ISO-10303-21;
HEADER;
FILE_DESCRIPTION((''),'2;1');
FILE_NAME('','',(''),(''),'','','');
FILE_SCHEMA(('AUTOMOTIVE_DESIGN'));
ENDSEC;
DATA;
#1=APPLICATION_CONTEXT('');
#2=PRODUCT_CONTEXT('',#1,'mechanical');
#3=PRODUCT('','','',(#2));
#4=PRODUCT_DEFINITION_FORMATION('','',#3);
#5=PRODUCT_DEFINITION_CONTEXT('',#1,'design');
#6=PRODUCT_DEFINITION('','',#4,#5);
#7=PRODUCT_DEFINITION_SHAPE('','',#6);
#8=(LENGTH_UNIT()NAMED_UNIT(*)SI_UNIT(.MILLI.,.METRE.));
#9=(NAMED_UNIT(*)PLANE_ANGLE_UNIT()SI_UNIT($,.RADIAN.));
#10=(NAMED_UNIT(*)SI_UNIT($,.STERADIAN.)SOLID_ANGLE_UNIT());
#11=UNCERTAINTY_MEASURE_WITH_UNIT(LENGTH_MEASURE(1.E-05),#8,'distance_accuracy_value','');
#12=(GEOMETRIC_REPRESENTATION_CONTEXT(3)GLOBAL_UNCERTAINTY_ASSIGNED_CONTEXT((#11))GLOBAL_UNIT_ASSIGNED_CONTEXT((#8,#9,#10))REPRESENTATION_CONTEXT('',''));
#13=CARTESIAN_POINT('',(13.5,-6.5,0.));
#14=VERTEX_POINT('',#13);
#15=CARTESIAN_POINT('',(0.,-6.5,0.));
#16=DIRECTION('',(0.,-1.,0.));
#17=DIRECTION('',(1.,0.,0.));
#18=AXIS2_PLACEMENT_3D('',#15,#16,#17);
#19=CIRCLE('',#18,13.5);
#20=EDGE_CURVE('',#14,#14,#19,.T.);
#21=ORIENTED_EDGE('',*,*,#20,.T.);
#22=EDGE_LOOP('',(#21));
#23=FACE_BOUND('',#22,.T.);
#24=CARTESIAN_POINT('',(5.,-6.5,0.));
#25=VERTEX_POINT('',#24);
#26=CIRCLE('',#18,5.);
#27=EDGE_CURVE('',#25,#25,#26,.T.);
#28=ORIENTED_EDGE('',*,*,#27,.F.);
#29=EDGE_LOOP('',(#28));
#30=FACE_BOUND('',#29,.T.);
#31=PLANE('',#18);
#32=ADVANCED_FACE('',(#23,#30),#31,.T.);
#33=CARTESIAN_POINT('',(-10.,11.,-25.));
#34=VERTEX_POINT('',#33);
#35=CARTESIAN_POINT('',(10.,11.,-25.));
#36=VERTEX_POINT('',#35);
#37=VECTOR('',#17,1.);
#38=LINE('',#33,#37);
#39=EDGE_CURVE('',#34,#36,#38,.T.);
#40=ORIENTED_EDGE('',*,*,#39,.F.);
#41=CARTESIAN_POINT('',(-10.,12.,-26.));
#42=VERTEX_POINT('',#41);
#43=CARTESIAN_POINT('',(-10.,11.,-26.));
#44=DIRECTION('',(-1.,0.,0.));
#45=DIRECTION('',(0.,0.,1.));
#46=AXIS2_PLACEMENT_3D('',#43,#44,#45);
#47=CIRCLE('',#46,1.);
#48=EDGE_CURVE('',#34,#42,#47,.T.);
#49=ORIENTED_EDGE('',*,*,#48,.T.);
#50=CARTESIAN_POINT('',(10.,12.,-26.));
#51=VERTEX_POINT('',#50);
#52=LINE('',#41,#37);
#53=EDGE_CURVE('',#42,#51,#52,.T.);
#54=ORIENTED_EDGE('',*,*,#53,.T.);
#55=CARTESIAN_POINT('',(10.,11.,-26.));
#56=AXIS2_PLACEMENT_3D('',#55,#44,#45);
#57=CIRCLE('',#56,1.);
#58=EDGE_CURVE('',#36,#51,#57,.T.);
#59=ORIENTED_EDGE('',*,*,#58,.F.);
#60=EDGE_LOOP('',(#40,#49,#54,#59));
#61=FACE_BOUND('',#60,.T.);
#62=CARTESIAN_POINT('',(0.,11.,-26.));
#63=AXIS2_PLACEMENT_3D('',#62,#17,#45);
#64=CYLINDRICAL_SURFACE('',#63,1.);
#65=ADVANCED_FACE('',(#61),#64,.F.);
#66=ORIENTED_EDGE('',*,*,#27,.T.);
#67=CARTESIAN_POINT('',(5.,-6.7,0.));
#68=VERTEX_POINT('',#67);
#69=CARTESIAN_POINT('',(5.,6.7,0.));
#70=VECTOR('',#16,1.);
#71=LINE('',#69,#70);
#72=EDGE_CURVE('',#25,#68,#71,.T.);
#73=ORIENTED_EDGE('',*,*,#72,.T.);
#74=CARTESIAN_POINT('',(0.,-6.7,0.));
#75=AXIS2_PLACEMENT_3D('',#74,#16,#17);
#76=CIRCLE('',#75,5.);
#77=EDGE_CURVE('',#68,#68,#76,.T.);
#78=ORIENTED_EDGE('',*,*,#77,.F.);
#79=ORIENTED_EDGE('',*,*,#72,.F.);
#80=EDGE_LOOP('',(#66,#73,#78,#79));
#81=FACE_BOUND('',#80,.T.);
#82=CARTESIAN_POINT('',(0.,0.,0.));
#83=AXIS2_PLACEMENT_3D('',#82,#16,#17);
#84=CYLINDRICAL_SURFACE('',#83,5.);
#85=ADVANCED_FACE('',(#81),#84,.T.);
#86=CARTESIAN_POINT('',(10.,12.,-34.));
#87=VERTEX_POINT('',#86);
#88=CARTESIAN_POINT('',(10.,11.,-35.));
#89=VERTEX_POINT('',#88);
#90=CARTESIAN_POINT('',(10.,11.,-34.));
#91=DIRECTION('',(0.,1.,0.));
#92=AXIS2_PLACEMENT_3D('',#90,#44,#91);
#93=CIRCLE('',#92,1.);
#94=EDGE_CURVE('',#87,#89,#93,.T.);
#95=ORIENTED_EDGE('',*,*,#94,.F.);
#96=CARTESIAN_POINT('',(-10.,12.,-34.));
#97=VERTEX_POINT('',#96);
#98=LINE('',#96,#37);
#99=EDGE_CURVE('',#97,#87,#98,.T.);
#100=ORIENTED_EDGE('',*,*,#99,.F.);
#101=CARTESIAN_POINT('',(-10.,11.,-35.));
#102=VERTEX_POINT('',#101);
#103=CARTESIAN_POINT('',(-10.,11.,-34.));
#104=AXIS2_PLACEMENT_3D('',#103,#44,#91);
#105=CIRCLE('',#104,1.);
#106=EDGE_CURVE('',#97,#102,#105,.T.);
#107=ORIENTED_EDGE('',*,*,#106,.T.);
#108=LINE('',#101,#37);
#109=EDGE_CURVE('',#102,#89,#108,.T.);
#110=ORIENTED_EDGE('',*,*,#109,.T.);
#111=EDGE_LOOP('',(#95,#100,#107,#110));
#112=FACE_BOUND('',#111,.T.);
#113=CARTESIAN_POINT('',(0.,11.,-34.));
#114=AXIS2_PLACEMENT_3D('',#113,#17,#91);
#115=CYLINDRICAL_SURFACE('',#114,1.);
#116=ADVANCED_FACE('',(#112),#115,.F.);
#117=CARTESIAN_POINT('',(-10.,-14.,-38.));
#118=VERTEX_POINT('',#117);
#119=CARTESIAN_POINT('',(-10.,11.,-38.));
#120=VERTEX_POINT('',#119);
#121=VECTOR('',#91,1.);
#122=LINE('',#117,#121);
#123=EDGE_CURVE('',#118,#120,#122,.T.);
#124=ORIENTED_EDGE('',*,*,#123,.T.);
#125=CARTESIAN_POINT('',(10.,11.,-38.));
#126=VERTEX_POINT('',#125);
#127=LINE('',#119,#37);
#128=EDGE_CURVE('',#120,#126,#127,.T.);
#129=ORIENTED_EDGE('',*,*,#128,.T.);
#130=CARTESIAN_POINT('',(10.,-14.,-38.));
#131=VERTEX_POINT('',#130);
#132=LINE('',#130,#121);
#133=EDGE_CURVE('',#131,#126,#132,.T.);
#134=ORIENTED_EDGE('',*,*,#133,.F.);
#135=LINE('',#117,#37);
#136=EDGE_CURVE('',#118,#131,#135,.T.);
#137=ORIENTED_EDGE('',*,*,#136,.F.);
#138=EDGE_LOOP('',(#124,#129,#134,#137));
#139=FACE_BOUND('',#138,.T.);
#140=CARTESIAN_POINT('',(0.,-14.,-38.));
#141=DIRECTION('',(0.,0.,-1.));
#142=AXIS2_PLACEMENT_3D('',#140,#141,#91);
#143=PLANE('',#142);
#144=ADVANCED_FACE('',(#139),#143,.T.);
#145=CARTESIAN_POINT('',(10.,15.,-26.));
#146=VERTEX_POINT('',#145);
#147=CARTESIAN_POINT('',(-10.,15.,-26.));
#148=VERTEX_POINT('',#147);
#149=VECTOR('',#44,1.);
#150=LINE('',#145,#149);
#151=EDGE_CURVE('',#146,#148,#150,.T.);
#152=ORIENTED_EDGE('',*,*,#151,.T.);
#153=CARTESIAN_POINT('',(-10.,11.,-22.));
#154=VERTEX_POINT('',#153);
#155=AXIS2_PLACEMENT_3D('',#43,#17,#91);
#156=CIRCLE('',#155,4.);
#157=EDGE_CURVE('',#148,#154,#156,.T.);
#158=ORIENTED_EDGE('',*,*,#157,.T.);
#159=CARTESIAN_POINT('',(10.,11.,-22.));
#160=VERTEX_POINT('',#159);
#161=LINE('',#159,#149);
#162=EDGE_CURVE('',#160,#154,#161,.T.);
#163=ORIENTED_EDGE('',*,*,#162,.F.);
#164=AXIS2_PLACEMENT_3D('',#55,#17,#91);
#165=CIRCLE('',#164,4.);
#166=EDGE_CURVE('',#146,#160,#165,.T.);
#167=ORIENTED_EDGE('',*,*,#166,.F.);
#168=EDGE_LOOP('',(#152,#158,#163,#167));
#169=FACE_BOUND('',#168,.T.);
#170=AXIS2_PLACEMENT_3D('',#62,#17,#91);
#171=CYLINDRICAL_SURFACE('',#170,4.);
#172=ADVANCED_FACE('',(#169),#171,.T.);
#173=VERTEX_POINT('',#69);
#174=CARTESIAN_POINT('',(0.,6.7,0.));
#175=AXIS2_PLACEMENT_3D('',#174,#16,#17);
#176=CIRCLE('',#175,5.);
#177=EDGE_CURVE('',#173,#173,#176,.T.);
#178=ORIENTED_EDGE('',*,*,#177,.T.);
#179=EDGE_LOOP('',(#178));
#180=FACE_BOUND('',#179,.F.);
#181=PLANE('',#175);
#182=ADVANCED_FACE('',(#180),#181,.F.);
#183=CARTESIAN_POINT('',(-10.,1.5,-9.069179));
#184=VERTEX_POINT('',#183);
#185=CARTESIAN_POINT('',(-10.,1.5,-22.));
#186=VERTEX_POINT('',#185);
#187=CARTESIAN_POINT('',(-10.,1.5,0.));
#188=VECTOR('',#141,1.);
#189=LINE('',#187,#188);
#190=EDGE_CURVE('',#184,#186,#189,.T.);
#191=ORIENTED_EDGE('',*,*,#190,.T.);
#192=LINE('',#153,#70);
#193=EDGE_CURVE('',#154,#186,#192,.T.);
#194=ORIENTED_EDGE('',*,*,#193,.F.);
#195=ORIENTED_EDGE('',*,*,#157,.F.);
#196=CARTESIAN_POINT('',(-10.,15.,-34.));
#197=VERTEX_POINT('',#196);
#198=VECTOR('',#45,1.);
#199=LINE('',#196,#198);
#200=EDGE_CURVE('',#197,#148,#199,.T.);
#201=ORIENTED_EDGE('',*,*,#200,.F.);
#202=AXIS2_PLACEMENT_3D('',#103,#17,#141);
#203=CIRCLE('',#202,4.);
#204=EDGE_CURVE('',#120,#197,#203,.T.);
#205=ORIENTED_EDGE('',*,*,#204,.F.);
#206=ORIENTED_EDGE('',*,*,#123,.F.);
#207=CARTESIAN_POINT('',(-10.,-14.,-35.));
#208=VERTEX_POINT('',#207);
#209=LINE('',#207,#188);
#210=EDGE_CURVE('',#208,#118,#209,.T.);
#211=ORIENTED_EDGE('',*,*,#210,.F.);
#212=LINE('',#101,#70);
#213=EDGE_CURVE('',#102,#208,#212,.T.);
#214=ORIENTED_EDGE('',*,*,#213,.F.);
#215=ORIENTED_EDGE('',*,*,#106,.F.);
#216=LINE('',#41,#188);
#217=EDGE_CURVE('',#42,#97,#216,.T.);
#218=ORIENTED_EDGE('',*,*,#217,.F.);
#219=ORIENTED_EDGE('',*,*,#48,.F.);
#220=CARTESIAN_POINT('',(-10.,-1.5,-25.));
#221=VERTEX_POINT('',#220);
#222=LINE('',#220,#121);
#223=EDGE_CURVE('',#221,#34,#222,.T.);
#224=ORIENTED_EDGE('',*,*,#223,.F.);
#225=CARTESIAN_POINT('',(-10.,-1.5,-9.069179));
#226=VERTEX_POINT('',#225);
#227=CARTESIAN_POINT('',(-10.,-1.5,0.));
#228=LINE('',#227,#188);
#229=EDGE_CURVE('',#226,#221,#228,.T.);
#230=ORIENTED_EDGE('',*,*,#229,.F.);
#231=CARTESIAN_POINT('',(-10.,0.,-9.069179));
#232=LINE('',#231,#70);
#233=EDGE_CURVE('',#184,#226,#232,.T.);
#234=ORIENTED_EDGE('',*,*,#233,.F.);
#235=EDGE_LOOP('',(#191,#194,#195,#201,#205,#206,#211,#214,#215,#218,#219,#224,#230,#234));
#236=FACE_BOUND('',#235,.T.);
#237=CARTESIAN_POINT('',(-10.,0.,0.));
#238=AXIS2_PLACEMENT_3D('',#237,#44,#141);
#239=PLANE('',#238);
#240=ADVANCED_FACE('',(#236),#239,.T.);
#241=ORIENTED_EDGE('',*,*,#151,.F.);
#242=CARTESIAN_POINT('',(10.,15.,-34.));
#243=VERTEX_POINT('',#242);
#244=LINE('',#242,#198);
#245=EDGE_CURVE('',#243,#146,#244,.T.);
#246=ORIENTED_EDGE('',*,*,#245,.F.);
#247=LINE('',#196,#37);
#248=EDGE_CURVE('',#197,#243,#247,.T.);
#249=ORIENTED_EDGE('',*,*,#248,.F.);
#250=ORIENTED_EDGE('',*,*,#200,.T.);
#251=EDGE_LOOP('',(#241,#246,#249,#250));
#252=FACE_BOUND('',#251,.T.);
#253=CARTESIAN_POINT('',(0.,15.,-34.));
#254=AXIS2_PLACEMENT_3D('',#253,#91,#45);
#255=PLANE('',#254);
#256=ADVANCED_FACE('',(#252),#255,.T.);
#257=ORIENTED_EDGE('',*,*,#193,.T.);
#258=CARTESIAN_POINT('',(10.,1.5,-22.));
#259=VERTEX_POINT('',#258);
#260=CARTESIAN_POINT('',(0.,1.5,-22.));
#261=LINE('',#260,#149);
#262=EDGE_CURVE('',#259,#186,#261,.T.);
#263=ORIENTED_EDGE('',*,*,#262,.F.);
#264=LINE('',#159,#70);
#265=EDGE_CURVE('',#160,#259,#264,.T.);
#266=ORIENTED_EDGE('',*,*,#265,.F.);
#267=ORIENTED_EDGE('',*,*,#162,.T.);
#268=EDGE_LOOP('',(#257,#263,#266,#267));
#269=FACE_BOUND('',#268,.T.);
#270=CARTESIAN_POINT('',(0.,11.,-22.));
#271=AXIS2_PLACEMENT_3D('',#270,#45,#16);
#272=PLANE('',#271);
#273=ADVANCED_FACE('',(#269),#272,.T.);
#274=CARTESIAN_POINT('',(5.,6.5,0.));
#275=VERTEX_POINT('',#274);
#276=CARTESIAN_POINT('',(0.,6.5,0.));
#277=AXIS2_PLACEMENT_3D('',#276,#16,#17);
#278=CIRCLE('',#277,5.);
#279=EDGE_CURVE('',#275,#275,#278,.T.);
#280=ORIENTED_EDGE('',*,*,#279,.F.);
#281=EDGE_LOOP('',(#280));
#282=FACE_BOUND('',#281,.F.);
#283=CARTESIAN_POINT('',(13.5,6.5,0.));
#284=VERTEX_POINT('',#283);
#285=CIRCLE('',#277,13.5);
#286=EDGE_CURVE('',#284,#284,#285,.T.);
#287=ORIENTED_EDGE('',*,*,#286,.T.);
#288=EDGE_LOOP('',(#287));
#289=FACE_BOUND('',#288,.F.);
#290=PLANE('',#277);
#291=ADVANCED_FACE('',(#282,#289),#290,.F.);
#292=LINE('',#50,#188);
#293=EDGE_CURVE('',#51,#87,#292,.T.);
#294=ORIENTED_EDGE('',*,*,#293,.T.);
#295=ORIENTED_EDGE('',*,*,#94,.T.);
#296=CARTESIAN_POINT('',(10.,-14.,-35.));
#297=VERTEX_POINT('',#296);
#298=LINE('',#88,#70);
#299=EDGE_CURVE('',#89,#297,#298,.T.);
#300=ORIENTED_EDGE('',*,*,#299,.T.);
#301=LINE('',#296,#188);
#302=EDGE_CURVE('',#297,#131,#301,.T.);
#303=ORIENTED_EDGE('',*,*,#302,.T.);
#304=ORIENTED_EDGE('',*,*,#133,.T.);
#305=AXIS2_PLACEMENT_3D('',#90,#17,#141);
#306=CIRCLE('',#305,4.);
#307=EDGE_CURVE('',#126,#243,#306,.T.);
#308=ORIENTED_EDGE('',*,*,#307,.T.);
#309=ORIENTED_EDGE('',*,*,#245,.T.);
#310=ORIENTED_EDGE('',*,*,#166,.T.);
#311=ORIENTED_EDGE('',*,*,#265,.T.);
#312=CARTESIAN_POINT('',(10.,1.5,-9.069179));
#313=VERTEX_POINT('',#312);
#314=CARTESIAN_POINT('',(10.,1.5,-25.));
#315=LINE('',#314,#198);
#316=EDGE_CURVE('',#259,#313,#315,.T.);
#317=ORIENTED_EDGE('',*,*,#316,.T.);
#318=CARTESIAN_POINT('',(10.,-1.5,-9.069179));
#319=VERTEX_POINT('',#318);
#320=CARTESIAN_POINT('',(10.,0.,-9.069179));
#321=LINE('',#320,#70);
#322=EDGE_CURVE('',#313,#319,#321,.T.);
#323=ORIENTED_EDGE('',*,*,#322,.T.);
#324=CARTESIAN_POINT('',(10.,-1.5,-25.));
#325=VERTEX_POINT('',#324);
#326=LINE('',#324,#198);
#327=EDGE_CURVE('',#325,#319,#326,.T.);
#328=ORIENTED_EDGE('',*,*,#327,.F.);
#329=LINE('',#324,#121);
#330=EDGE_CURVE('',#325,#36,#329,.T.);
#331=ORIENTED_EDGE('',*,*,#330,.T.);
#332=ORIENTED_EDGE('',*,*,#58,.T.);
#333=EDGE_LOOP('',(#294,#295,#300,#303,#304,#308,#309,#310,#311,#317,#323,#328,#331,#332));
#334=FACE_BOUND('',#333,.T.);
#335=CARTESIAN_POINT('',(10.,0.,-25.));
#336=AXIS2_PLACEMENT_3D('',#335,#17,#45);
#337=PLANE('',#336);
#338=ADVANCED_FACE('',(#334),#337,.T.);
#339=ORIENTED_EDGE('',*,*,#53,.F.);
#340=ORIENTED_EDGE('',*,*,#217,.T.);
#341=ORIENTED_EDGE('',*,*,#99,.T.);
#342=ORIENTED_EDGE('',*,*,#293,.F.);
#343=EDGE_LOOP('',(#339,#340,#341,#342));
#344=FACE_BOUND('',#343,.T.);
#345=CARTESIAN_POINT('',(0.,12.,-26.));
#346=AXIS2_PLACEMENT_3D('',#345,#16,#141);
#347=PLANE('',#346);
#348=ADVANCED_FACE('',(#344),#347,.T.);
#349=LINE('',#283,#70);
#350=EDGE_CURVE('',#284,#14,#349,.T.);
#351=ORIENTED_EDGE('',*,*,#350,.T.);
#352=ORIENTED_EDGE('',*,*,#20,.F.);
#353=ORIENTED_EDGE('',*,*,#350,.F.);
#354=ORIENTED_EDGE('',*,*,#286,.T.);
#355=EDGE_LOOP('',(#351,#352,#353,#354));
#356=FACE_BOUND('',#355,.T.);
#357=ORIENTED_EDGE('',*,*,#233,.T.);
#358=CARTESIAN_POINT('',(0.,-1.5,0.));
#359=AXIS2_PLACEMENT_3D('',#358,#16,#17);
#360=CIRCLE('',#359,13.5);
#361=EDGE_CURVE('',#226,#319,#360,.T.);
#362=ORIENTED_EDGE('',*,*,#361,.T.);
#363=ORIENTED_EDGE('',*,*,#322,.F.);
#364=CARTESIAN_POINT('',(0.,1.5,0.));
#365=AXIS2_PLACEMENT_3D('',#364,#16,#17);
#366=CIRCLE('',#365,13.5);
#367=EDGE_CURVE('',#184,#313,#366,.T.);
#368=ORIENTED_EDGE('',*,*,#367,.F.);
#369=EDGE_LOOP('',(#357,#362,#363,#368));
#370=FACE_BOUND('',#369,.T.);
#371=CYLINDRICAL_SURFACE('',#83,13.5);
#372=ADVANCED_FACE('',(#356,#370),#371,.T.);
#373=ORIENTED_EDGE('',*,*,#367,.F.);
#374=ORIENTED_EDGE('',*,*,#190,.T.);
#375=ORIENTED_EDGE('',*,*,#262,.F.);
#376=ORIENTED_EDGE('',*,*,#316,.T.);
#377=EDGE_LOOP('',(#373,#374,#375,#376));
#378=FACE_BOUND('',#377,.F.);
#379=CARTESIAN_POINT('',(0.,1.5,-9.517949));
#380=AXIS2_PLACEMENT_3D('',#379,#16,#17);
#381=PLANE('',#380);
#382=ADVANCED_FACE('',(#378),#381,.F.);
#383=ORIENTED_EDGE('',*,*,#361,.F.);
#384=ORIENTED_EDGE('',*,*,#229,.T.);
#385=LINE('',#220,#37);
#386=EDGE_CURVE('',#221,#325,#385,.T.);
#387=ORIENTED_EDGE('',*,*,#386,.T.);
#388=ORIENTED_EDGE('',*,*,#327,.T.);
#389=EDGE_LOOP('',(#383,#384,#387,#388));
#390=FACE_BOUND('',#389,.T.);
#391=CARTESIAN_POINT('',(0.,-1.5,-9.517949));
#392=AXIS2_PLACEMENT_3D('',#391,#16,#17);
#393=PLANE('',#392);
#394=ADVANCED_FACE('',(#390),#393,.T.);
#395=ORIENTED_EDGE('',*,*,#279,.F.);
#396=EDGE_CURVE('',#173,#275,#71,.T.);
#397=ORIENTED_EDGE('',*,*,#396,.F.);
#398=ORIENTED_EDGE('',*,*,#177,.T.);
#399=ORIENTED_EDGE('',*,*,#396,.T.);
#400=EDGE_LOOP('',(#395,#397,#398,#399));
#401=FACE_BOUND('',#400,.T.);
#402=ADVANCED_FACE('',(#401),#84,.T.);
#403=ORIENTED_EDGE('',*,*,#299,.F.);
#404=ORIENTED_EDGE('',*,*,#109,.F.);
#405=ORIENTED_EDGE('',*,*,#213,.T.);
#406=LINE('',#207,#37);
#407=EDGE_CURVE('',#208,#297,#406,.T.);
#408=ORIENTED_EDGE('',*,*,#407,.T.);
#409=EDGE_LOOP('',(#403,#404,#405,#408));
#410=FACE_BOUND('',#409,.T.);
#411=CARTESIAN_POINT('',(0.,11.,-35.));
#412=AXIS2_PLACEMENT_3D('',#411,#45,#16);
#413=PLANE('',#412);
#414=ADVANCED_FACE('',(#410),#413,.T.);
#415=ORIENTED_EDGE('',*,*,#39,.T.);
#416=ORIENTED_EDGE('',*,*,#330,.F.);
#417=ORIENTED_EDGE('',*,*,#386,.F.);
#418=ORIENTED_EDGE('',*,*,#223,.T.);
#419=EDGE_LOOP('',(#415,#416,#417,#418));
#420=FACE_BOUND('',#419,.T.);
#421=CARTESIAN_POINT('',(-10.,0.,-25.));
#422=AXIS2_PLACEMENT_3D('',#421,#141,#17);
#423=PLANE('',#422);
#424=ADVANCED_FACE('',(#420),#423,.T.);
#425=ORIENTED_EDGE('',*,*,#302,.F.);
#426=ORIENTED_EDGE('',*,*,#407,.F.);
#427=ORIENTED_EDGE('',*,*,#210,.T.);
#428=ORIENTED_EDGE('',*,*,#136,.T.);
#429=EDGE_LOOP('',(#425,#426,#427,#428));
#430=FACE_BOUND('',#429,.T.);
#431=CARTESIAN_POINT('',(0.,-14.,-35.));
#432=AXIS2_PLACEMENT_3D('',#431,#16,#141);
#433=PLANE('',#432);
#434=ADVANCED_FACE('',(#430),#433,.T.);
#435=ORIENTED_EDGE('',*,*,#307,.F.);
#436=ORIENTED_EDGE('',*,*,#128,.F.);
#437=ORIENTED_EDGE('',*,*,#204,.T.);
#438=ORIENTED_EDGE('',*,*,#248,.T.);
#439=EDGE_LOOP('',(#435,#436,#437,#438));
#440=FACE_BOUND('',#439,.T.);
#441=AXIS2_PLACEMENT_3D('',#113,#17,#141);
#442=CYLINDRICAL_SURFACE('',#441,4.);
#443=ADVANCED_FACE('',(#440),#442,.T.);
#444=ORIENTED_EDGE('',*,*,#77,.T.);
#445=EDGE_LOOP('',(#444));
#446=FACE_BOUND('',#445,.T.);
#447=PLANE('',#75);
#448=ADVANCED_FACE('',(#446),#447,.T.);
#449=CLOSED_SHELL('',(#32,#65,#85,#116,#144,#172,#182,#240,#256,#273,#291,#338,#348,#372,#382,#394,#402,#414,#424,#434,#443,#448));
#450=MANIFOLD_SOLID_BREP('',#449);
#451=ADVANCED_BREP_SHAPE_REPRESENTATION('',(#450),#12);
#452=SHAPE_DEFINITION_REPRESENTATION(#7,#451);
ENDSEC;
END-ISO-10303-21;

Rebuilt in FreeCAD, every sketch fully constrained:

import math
import FreeCAD as App
import Part
import Sketcher
from FreeCAD import Vector

doc = App.newDocument("Part")
body = doc.addObject("PartDesign::Body", "Body")

sketch1 = doc.addObject("Sketcher::SketchObject", "Sketch")
body.addObject(sketch1)
sketch1.AttachmentSupport = (doc.XZ_Plane, [""])
sketch1.MapMode = "FlatFace"
sketch1.addGeometry([
    Part.Circle(Vector(0, 0, 0), Vector(0, 0, 1), 14),
    Part.Circle(Vector(0, 0, 0), Vector(0, 0, 1), 5),
], False)
sketch1.addConstraint([
    Sketcher.Constraint("Coincident", 0, 3, -1, 1),
    Sketcher.Constraint("Coincident", 1, 3, -1, 1),
    Sketcher.Constraint("Diameter", 0, 27.0),
    Sketcher.Constraint("Diameter", 1, 10.0),
])
pad1 = doc.addObject("PartDesign::Pad", "Pad")
body.addObject(pad1)
pad1.Profile = sketch1
pad1.Length = 13
pad1.Midplane = True

sketch2 = doc.addObject("Sketcher::SketchObject", "Sketch001")
body.addObject(sketch2)
sketch2.AttachmentSupport = (doc.XZ_Plane, [""])
sketch2.MapMode = "FlatFace"
sketch2.addGeometry(Part.Circle(Vector(0, 0, 0), Vector(0, 0, 1), 5), False)
sketch2.addConstraint([
    Sketcher.Constraint("Coincident", 0, 3, -1, 1),
    Sketcher.Constraint("Diameter", 0, 10.0),
])
pad2 = doc.addObject("PartDesign::Pad", "Pad001")
body.addObject(pad2)
pad2.Profile = sketch2
pad2.Length = 13.4
pad2.Midplane = True

sketch3 = doc.addObject("Sketcher::SketchObject", "Sketch002")
body.addObject(sketch3)
sketch3.AttachmentSupport = (doc.XZ_Plane, [""])
sketch3.MapMode = "FlatFace"
sketch3.addGeometry([
    Part.LineSegment(Vector(10, -25, 0), Vector(10, 0, 0)),
    Part.ArcOfCircle(Part.Circle(Vector(0, 0, 0), Vector(0, 0, 1), 10), math.radians(0), math.radians(180)),
    Part.LineSegment(Vector(-10, 0, 0), Vector(-10, -25, 0)),
    Part.LineSegment(Vector(-10, -25, 0), Vector(10, -25, 0)),
    Part.Circle(Vector(0, 0, 0), Vector(0, 0, 1), 5),
], False)
sketch3.addConstraint([
    Sketcher.Constraint("Tangent", 0, 2, 1, 1),
    Sketcher.Constraint("Tangent", 1, 2, 2, 1),
    Sketcher.Constraint("Coincident", 2, 2, 3, 1),
    Sketcher.Constraint("Coincident", 3, 2, 0, 1),
    Sketcher.Constraint("Vertical", 0),
    Sketcher.Constraint("Vertical", 2),
    Sketcher.Constraint("Horizontal", 3),
    Sketcher.Constraint("Coincident", 1, 3, -1, 1),
    Sketcher.Constraint("Coincident", 4, 3, -1, 1),
    Sketcher.Constraint("Diameter", 4, 10.0),
    Sketcher.Constraint("Radius", 1, 10.0),
    Sketcher.Constraint("DistanceY", 0, 1, 0, 2, 25.0),
])
pad3 = doc.addObject("PartDesign::Pad", "Pad002")
body.addObject(pad3)
pad3.Profile = sketch3
pad3.Length = 3
pad3.Midplane = True

sketch4 = doc.addObject("Sketcher::SketchObject", "Sketch003")
body.addObject(sketch4)
sketch4.AttachmentSupport = (doc.YZ_Plane, [""])
sketch4.MapMode = "FlatFace"
sketch4.addGeometry([
    Part.LineSegment(Vector(0, -22, 0), Vector(0, -25, 0)),
    Part.LineSegment(Vector(0, -25, 0), Vector(11, -25, 0)),
    Part.ArcOfCircle(Part.Circle(Vector(11, -26, 0), Vector(0, 0, 1), 1), math.radians(0), math.radians(90)),
    Part.LineSegment(Vector(12, -26, 0), Vector(12, -34, 0)),
    Part.ArcOfCircle(Part.Circle(Vector(11, -34, 0), Vector(0, 0, 1), 1), math.radians(-90), math.radians(0)),
    Part.LineSegment(Vector(11, -35, 0), Vector(-14, -35, 0)),
    Part.LineSegment(Vector(-14, -35, 0), Vector(-14, -38, 0)),
    Part.LineSegment(Vector(-14, -38, 0), Vector(11, -38, 0)),
    Part.ArcOfCircle(Part.Circle(Vector(11, -34, 0), Vector(0, 0, 1), 4), math.radians(-90), math.radians(0)),
    Part.LineSegment(Vector(15, -34, 0), Vector(15, -26, 0)),
    Part.ArcOfCircle(Part.Circle(Vector(11, -26, 0), Vector(0, 0, 1), 4), math.radians(0), math.radians(90)),
    Part.LineSegment(Vector(11, -22, 0), Vector(0, -22, 0)),
], False)
sketch4.addConstraint([
    Sketcher.Constraint("Coincident", 0, 2, 1, 1),
    Sketcher.Constraint("Tangent", 1, 2, 2, 2),
    Sketcher.Constraint("Tangent", 2, 1, 3, 1),
    Sketcher.Constraint("Tangent", 3, 2, 4, 2),
    Sketcher.Constraint("Tangent", 4, 1, 5, 1),
    Sketcher.Constraint("Coincident", 5, 2, 6, 1),
    Sketcher.Constraint("Coincident", 6, 2, 7, 1),
    Sketcher.Constraint("Tangent", 7, 2, 8, 1),
    Sketcher.Constraint("Tangent", 8, 2, 9, 1),
    Sketcher.Constraint("Tangent", 9, 2, 10, 1),
    Sketcher.Constraint("Tangent", 10, 2, 11, 1),
    Sketcher.Constraint("Coincident", 11, 2, 0, 1),
    Sketcher.Constraint("Vertical", 0),
    Sketcher.Constraint("Horizontal", 1),
    Sketcher.Constraint("Vertical", 3),
    Sketcher.Constraint("Horizontal", 5),
    Sketcher.Constraint("Vertical", 6),
    Sketcher.Constraint("Horizontal", 7),
    Sketcher.Constraint("Vertical", 9),
    Sketcher.Constraint("Horizontal", 11),
    Sketcher.Constraint("Coincident", 8, 3, 4, 3),
    Sketcher.Constraint("Coincident", 10, 3, 2, 3),
    Sketcher.Constraint("Equal", 2, 4),
    Sketcher.Constraint("PointOnObject", 0, 2, -2),
    Sketcher.Constraint("Radius", 2, 1.0),
    Sketcher.Constraint("Radius", 8, 4.0),
    Sketcher.Constraint("DistanceX", 1, 1, 1, 2, 11.0),
    Sketcher.Constraint("DistanceX", 5, 2, 5, 1, 25.0),
    Sketcher.Constraint("DistanceY", 3, 2, 3, 1, 8.0),
    Sketcher.Constraint("DistanceY", 2, 3, -1, 1, 26.0),
])
pad4 = doc.addObject("PartDesign::Pad", "Pad003")
body.addObject(pad4)
pad4.Profile = sketch4
pad4.Length = 20
pad4.Midplane = True

doc.recompute()
